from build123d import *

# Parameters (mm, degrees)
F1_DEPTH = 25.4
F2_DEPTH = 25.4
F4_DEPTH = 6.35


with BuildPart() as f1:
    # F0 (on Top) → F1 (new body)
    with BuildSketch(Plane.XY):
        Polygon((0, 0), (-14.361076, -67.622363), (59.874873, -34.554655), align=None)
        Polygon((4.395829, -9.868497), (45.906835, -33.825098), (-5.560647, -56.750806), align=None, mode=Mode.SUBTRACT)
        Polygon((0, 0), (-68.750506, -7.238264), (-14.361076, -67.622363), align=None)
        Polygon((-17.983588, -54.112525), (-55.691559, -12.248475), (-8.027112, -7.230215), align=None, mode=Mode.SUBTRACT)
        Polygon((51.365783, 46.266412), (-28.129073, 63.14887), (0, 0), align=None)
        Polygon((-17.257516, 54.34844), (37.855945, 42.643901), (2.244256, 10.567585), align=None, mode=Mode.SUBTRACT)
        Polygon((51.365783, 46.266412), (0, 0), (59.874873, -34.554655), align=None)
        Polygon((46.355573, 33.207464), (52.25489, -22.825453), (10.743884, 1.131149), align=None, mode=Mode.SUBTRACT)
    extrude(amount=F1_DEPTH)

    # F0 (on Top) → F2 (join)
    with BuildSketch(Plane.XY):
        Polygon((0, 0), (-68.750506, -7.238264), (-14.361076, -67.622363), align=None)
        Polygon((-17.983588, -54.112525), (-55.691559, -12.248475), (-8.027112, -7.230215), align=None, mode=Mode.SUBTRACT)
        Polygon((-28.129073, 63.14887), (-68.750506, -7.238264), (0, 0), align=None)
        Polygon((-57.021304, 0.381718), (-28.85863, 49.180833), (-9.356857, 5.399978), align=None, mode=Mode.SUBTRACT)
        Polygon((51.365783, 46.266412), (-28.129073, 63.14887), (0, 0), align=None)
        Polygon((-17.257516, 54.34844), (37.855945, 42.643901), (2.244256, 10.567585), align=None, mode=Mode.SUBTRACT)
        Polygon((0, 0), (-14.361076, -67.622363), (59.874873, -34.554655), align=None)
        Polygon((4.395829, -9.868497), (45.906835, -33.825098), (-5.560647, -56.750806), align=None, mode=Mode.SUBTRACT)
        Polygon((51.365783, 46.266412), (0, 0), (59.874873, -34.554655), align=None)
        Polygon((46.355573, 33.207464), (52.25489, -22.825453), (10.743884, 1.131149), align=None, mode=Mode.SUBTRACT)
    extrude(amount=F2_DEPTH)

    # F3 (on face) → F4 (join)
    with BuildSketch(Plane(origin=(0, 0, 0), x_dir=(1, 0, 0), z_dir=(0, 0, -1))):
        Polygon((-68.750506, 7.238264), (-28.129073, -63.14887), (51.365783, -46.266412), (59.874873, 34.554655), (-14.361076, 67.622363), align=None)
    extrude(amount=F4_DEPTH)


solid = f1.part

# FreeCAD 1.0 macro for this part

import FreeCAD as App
import Part
import Sketcher
Q = App.Units.Quantity

doc = App.newDocument("Part")
body = doc.addObject("PartDesign::Body", "Body")

sketch1 = body.newObject("Sketcher::SketchObject", "Sketch")
sketch1.AttachmentSupport = (doc.getObject("XY_Plane"), [""])
sketch1.MapMode = "FlatFace"
sketch1.addGeometry([
    Part.LineSegment(App.Vector(-14, -68, 0), App.Vector(60, -35, 0)),
    Part.LineSegment(App.Vector(60, -35, 0), App.Vector(51, 46, 0)),
    Part.LineSegment(App.Vector(51, 46, 0), App.Vector(-28, 63, 0)),
    Part.LineSegment(App.Vector(-28, 63, 0), App.Vector(0, 0, 0)),
    Part.LineSegment(App.Vector(0, 0, 0), App.Vector(-69, -7, 0)),
    Part.LineSegment(App.Vector(-69, -7, 0), App.Vector(-14, -68, 0)),
    Part.LineSegment(App.Vector(-8, -7, 0), App.Vector(-18, -54, 0)),
    Part.LineSegment(App.Vector(-18, -54, 0), App.Vector(-56, -12, 0)),
    Part.LineSegment(App.Vector(-56, -12, 0), App.Vector(-8, -7, 0)),
    Part.LineSegment(App.Vector(-6, -57, 0), App.Vector(4, -10, 0)),
    Part.LineSegment(App.Vector(4, -10, 0), App.Vector(46, -34, 0)),
    Part.LineSegment(App.Vector(46, -34, 0), App.Vector(-6, -57, 0)),
    Part.LineSegment(App.Vector(11, 1, 0), App.Vector(46, 33, 0)),
    Part.LineSegment(App.Vector(46, 33, 0), App.Vector(52, -23, 0)),
    Part.LineSegment(App.Vector(52, -23, 0), App.Vector(11, 1, 0)),
    Part.LineSegment(App.Vector(-17, 54, 0), App.Vector(38, 43, 0)),
    Part.LineSegment(App.Vector(38, 43, 0), App.Vector(2, 11, 0)),
    Part.LineSegment(App.Vector(2, 11, 0), App.Vector(-17, 54, 0)),
], False)
sketch1.addConstraint([
    Sketcher.Constraint("Coincident", 0, 2, 1, 1),
    Sketcher.Constraint("Coincident", 1, 2, 2, 1),
    Sketcher.Constraint("Coincident", 2, 2, 3, 1),
    Sketcher.Constraint("Coincident", 3, 2, 4, 1),
    Sketcher.Constraint("Coincident", 4, 2, 5, 1),
    Sketcher.Constraint("Coincident", 5, 2, 0, 1),
    Sketcher.Constraint("Coincident", 6, 2, 7, 1),
    Sketcher.Constraint("Coincident", 7, 2, 8, 1),
    Sketcher.Constraint("Coincident", 8, 2, 6, 1),
    Sketcher.Constraint("Coincident", 9, 2, 10, 1),
    Sketcher.Constraint("Coincident", 10, 2, 11, 1),
    Sketcher.Constraint("Coincident", 11, 2, 9, 1),
    Sketcher.Constraint("Coincident", 12, 2, 13, 1),
    Sketcher.Constraint("Coincident", 13, 2, 14, 1),
    Sketcher.Constraint("Coincident", 14, 2, 12, 1),
    Sketcher.Constraint("Coincident", 15, 2, 16, 1),
    Sketcher.Constraint("Coincident", 16, 2, 17, 1),
    Sketcher.Constraint("Coincident", 17, 2, 15, 1),
    Sketcher.Constraint("Coincident", 3, 2, -1, 1),
    Sketcher.Constraint("Perpendicular", 0, 3),
    Sketcher.Constraint("Perpendicular", 1, 4),
    Sketcher.Constraint("Perpendicular", 2, 6),
    Sketcher.Constraint("Parallel", 5, 7),
    Sketcher.Constraint("Parallel", 4, 8),
    Sketcher.Constraint("Parallel", 6, 9),
    Sketcher.Constraint("Perpendicular", 3, 11),
    Sketcher.Constraint("Perpendicular", 7, 12),
    Sketcher.Constraint("Perpendicular", 8, 13),
    Sketcher.Constraint("Parallel", 10, 14),
    Sketcher.Constraint("Perpendicular", 9, 15),
    Sketcher.Constraint("Parallel", 12, 16),
    Sketcher.Constraint("Perpendicular", 11, 17),
    Sketcher.Constraint("Equal", 0, 1),
    Sketcher.Constraint("Equal", 1, 2),
    Sketcher.Constraint("Equal", 3, 4),
    Sketcher.Constraint("Equal", 2, 5),
    Sketcher.Constraint("Equal", 6, 8),
    Sketcher.Constraint("Equal", 8, 9),
    Sketcher.Constraint("Equal", 9, 10),
    Sketcher.Constraint("Equal", 10, 12),
    Sketcher.Constraint("Equal", 11, 13),
    Sketcher.Constraint("Equal", 13, 15),
    Sketcher.Constraint("DistanceY", 7, 2, 9, 2, Q("0.0936999 in")),
    Sketcher.Constraint("DistanceY", -1, 1, 15, 2, Q("42.643901 mm")),
    Sketcher.Constraint("DistanceY", 5, 2, 4, 2, Q("60.384099 mm")),
    Sketcher.Constraint("DistanceY", 10, 2, 9, 2, Q("23.956601 mm")),
    Sketcher.Constraint("DistanceY", 0, 2, 13, 2, Q("11.729202 mm")),
    Sketcher.Constraint("DistanceY", 8, 2, 16, 2, Q("17.7978 mm")),
    Sketcher.Constraint("DistanceX", 17, 2, 14, 2, Q("28.0014 mm")),
    Sketcher.Constraint("Distance", 3, Q("69.130489 mm")),
    Sketcher.Constraint("DistanceX", 6, 2, -1, 1, Q("17.983588 mm")),
    Sketcher.Constraint("DistanceX", -1, 1, 9, 2, Q("4.395829 mm")),
    Sketcher.Constraint("DistanceX", -1, 1, 13, 2, Q("52.25489 mm")),
])
pad1 = body.newObject("PartDesign::Pad", "Pad")
pad1.Profile = sketch1
pad1.Length = Q("1 in")

sketch2 = body.newObject("Sketcher::SketchObject", "Sketch001")
sketch2.AttachmentSupport = (doc.getObject("XY_Plane"), [""])
sketch2.MapMode = "FlatFace"
sketch2.addGeometry([
    Part.LineSegment(App.Vector(-69, -7, 0), App.Vector(-14, -68, 0)),
    Part.LineSegment(App.Vector(-14, -68, 0), App.Vector(60, -35, 0)),
    Part.LineSegment(App.Vector(60, -35, 0), App.Vector(51, 46, 0)),
    Part.LineSegment(App.Vector(51, 46, 0), App.Vector(-28, 63, 0)),
    Part.LineSegment(App.Vector(-28, 63, 0), App.Vector(-69, -7, 0)),
    Part.LineSegment(App.Vector(-8, -7, 0), App.Vector(-18, -54, 0)),
    Part.LineSegment(App.Vector(-18, -54, 0), App.Vector(-56, -12, 0)),
    Part.LineSegment(App.Vector(-56, -12, 0), App.Vector(-8, -7, 0)),
    Part.LineSegment(App.Vector(-6, -57, 0), App.Vector(4, -10, 0)),
    Part.LineSegment(App.Vector(4, -10, 0), App.Vector(46, -34, 0)),
    Part.LineSegment(App.Vector(46, -34, 0), App.Vector(-6, -57, 0)),
    Part.LineSegment(App.Vector(-9, 5, 0), App.Vector(-57, 0, 0)),
    Part.LineSegment(App.Vector(-57, 0, 0), App.Vector(-29, 49, 0)),
    Part.LineSegment(App.Vector(-29, 49, 0), App.Vector(-9, 5, 0)),
    Part.LineSegment(App.Vector(11, 1, 0), App.Vector(46, 33, 0)),
    Part.LineSegment(App.Vector(46, 33, 0), App.Vector(52, -23, 0)),
    Part.LineSegment(App.Vector(52, -23, 0), App.Vector(11, 1, 0)),
    Part.LineSegment(App.Vector(2, 11, 0), App.Vector(-17, 54, 0)),
    Part.LineSegment(App.Vector(-17, 54, 0), App.Vector(38, 43, 0)),
    Part.LineSegment(App.Vector(38, 43, 0), App.Vector(2, 11, 0)),
], False)
sketch2.addConstraint([
    Sketcher.Constraint("Coincident", 0, 2, 1, 1),
    Sketcher.Constraint("Coincident", 1, 2, 2, 1),
    Sketcher.Constraint("Coincident", 2, 2, 3, 1),
    Sketcher.Constraint("Coincident", 3, 2, 4, 1),
    Sketcher.Constraint("Coincident", 4, 2, 0, 1),
    Sketcher.Constraint("Coincident", 5, 2, 6, 1),
    Sketcher.Constraint("Coincident", 6, 2, 7, 1),
    Sketcher.Constraint("Coincident", 7, 2, 5, 1),
    Sketcher.Constraint("Coincident", 8, 2, 9, 1),
    Sketcher.Constraint("Coincident", 9, 2, 10, 1),
    Sketcher.Constraint("Coincident", 10, 2, 8, 1),
    Sketcher.Constraint("Coincident", 11, 2, 12, 1),
    Sketcher.Constraint("Coincident", 12, 2, 13, 1),
    Sketcher.Constraint("Coincident", 13, 2, 11, 1),
    Sketcher.Constraint("Coincident", 14, 2, 15, 1),
    Sketcher.Constraint("Coincident", 15, 2, 16, 1),
    Sketcher.Constraint("Coincident", 16, 2, 14, 1),
    Sketcher.Constraint("Coincident", 17, 2, 18, 1),
    Sketcher.Constraint("Coincident", 18, 2, 19, 1),
    Sketcher.Constraint("Coincident", 19, 2, 17, 1),
    Sketcher.Constraint("Perpendicular", 3, 5),
    Sketcher.Constraint("Parallel", 0, 6),
    Sketcher.Constraint("Perpendicular", 2, 7),
    Sketcher.Constraint("Parallel", 5, 8),
    Sketcher.Constraint("Perpendicular", 4, 9),
    Sketcher.Constraint("Parallel", 1, 10),
    Sketcher.Constraint("Parallel", 7, 11),
    Sketcher.Constraint("Perpendicular", 9, 12),
    Sketcher.Constraint("Perpendicular", 10, 13),
    Sketcher.Constraint("Perpendicular", 6, 14),
    Sketcher.Constraint("Perpendicular", 11, 15),
    Sketcher.Constraint("Perpendicular", 12, 16),
    Sketcher.Constraint("Parallel", 13, 17),
    Sketcher.Constraint("Perpendicular", 8, 18),
    Sketcher.Constraint("Parallel", 14, 19),
    Sketcher.Constraint("Equal", 0, 1),
    Sketcher.Constraint("Equal", 1, 2),
    Sketcher.Constraint("Equal", 2, 3),
    Sketcher.Constraint("Equal", 3, 4),
    Sketcher.Constraint("Equal", 5, 7),
    Sketcher.Constraint("Equal", 7, 8),
    Sketcher.Constraint("Equal", 8, 9),
    Sketcher.Constraint("Equal", 9, 11),
    Sketcher.Constraint("Equal", 13, 14),
    Sketcher.Constraint("Equal", 16, 17),
    Sketcher.Constraint("DistanceY", 6, 2, 8, 2, Q("0.0936999 in")),
    Sketcher.Constraint("DistanceY", -1, 1, 18, 2, Q("42.643901 mm")),
    Sketcher.Constraint("DistanceY", 0, 2, 4, 2, Q("60.384099 mm")),
    Sketcher.Constraint("DistanceY", 9, 2, 8, 2, Q("23.956601 mm")),
    Sketcher.Constraint("DistanceY", 1, 2, 15, 2, Q("11.729202 mm")),
    Sketcher.Constraint("DistanceX", 17, 2, 16, 2, Q("28.0014 mm")),
    Sketcher.Constraint("DistanceX", 13, 2, 18, 2, Q("47.212802 mm")),
    Sketcher.Constraint("DistanceY", 7, 2, 19, 2, Q("17.7978 mm")),
    Sketcher.Constraint("Distance", 6, Q("56.342611 mm")),
    Sketcher.Constraint("DistanceY", -1, 1, 3, 2, Q("63.14887 mm")),
    Sketcher.Constraint("DistanceX", 5, 2, -1, 1, Q("17.983588 mm")),
    Sketcher.Constraint("DistanceX", -1, 1, 8, 2, Q("4.395829 mm")),
    Sketcher.Constraint("DistanceX", 12, 2, -1, 1, Q("28.85863 mm")),
    Sketcher.Constraint("DistanceX", 4, 2, 5, 2, Q("50.766918 mm")),
    Sketcher.Constraint("DistanceY", 8, 2, 12, 2, Q("59.04933 mm")),
])
pad2 = body.newObject("PartDesign::Pad", "Pad001")
pad2.Profile = sketch2
pad2.Length = Q("1 in")

sketch3 = body.newObject("Sketcher::SketchObject", "Sketch002")
sketch3.AttachmentSupport = (doc.getObject("XY_Plane"), [""])
sketch3.MapMode = "FlatFace"
sketch3.addGeometry([
    Part.LineSegment(App.Vector(-69, -7, 0), App.Vector(-28, 63, 0)),
    Part.LineSegment(App.Vector(-28, 63, 0), App.Vector(51, 46, 0)),
    Part.LineSegment(App.Vector(51, 46, 0), App.Vector(60, -35, 0)),
    Part.LineSegment(App.Vector(60, -35, 0), App.Vector(-14, -68, 0)),
    Part.LineSegment(App.Vector(-14, -68, 0), App.Vector(-69, -7, 0)),
], False)
sketch3.addConstraint([
    Sketcher.Constraint("Coincident", 0, 2, 1, 1),
    Sketcher.Constraint("Coincident", 1, 2, 2, 1),
    Sketcher.Constraint("Coincident", 2, 2, 3, 1),
    Sketcher.Constraint("Coincident", 3, 2, 4, 1),
    Sketcher.Constraint("Coincident", 4, 2, 0, 1),
    Sketcher.Constraint("Equal", 0, 1),
    Sketcher.Constraint("Equal", 1, 2),
    Sketcher.Constraint("Equal", 2, 3),
    Sketcher.Constraint("Equal", 3, 4),
    Sketcher.Constraint("DistanceY", 3, 2, 4, 2, Q("60.384099 mm")),
    Sketcher.Constraint("DistanceY", -1, 1, 0, 2, Q("63.14887 mm")),
    Sketcher.Constraint("DistanceY", 1, 2, 0, 2, Q("16.882458 mm")),
    Sketcher.Constraint("DistanceX", 1, 2, 2, 2, Q("8.50909 mm")),
    Sketcher.Constraint("DistanceX", 3, 2, 2, 2, Q("74.235949 mm")),
    Sketcher.Constraint("DistanceX", 0, 2, -1, 1, Q("28.129073 mm")),
])
pad3 = body.newObject("PartDesign::Pad", "Pad002")
pad3.Profile = sketch3
pad3.Length = Q("0.25 in")
pad3.Reversed = True

doc.recompute()
